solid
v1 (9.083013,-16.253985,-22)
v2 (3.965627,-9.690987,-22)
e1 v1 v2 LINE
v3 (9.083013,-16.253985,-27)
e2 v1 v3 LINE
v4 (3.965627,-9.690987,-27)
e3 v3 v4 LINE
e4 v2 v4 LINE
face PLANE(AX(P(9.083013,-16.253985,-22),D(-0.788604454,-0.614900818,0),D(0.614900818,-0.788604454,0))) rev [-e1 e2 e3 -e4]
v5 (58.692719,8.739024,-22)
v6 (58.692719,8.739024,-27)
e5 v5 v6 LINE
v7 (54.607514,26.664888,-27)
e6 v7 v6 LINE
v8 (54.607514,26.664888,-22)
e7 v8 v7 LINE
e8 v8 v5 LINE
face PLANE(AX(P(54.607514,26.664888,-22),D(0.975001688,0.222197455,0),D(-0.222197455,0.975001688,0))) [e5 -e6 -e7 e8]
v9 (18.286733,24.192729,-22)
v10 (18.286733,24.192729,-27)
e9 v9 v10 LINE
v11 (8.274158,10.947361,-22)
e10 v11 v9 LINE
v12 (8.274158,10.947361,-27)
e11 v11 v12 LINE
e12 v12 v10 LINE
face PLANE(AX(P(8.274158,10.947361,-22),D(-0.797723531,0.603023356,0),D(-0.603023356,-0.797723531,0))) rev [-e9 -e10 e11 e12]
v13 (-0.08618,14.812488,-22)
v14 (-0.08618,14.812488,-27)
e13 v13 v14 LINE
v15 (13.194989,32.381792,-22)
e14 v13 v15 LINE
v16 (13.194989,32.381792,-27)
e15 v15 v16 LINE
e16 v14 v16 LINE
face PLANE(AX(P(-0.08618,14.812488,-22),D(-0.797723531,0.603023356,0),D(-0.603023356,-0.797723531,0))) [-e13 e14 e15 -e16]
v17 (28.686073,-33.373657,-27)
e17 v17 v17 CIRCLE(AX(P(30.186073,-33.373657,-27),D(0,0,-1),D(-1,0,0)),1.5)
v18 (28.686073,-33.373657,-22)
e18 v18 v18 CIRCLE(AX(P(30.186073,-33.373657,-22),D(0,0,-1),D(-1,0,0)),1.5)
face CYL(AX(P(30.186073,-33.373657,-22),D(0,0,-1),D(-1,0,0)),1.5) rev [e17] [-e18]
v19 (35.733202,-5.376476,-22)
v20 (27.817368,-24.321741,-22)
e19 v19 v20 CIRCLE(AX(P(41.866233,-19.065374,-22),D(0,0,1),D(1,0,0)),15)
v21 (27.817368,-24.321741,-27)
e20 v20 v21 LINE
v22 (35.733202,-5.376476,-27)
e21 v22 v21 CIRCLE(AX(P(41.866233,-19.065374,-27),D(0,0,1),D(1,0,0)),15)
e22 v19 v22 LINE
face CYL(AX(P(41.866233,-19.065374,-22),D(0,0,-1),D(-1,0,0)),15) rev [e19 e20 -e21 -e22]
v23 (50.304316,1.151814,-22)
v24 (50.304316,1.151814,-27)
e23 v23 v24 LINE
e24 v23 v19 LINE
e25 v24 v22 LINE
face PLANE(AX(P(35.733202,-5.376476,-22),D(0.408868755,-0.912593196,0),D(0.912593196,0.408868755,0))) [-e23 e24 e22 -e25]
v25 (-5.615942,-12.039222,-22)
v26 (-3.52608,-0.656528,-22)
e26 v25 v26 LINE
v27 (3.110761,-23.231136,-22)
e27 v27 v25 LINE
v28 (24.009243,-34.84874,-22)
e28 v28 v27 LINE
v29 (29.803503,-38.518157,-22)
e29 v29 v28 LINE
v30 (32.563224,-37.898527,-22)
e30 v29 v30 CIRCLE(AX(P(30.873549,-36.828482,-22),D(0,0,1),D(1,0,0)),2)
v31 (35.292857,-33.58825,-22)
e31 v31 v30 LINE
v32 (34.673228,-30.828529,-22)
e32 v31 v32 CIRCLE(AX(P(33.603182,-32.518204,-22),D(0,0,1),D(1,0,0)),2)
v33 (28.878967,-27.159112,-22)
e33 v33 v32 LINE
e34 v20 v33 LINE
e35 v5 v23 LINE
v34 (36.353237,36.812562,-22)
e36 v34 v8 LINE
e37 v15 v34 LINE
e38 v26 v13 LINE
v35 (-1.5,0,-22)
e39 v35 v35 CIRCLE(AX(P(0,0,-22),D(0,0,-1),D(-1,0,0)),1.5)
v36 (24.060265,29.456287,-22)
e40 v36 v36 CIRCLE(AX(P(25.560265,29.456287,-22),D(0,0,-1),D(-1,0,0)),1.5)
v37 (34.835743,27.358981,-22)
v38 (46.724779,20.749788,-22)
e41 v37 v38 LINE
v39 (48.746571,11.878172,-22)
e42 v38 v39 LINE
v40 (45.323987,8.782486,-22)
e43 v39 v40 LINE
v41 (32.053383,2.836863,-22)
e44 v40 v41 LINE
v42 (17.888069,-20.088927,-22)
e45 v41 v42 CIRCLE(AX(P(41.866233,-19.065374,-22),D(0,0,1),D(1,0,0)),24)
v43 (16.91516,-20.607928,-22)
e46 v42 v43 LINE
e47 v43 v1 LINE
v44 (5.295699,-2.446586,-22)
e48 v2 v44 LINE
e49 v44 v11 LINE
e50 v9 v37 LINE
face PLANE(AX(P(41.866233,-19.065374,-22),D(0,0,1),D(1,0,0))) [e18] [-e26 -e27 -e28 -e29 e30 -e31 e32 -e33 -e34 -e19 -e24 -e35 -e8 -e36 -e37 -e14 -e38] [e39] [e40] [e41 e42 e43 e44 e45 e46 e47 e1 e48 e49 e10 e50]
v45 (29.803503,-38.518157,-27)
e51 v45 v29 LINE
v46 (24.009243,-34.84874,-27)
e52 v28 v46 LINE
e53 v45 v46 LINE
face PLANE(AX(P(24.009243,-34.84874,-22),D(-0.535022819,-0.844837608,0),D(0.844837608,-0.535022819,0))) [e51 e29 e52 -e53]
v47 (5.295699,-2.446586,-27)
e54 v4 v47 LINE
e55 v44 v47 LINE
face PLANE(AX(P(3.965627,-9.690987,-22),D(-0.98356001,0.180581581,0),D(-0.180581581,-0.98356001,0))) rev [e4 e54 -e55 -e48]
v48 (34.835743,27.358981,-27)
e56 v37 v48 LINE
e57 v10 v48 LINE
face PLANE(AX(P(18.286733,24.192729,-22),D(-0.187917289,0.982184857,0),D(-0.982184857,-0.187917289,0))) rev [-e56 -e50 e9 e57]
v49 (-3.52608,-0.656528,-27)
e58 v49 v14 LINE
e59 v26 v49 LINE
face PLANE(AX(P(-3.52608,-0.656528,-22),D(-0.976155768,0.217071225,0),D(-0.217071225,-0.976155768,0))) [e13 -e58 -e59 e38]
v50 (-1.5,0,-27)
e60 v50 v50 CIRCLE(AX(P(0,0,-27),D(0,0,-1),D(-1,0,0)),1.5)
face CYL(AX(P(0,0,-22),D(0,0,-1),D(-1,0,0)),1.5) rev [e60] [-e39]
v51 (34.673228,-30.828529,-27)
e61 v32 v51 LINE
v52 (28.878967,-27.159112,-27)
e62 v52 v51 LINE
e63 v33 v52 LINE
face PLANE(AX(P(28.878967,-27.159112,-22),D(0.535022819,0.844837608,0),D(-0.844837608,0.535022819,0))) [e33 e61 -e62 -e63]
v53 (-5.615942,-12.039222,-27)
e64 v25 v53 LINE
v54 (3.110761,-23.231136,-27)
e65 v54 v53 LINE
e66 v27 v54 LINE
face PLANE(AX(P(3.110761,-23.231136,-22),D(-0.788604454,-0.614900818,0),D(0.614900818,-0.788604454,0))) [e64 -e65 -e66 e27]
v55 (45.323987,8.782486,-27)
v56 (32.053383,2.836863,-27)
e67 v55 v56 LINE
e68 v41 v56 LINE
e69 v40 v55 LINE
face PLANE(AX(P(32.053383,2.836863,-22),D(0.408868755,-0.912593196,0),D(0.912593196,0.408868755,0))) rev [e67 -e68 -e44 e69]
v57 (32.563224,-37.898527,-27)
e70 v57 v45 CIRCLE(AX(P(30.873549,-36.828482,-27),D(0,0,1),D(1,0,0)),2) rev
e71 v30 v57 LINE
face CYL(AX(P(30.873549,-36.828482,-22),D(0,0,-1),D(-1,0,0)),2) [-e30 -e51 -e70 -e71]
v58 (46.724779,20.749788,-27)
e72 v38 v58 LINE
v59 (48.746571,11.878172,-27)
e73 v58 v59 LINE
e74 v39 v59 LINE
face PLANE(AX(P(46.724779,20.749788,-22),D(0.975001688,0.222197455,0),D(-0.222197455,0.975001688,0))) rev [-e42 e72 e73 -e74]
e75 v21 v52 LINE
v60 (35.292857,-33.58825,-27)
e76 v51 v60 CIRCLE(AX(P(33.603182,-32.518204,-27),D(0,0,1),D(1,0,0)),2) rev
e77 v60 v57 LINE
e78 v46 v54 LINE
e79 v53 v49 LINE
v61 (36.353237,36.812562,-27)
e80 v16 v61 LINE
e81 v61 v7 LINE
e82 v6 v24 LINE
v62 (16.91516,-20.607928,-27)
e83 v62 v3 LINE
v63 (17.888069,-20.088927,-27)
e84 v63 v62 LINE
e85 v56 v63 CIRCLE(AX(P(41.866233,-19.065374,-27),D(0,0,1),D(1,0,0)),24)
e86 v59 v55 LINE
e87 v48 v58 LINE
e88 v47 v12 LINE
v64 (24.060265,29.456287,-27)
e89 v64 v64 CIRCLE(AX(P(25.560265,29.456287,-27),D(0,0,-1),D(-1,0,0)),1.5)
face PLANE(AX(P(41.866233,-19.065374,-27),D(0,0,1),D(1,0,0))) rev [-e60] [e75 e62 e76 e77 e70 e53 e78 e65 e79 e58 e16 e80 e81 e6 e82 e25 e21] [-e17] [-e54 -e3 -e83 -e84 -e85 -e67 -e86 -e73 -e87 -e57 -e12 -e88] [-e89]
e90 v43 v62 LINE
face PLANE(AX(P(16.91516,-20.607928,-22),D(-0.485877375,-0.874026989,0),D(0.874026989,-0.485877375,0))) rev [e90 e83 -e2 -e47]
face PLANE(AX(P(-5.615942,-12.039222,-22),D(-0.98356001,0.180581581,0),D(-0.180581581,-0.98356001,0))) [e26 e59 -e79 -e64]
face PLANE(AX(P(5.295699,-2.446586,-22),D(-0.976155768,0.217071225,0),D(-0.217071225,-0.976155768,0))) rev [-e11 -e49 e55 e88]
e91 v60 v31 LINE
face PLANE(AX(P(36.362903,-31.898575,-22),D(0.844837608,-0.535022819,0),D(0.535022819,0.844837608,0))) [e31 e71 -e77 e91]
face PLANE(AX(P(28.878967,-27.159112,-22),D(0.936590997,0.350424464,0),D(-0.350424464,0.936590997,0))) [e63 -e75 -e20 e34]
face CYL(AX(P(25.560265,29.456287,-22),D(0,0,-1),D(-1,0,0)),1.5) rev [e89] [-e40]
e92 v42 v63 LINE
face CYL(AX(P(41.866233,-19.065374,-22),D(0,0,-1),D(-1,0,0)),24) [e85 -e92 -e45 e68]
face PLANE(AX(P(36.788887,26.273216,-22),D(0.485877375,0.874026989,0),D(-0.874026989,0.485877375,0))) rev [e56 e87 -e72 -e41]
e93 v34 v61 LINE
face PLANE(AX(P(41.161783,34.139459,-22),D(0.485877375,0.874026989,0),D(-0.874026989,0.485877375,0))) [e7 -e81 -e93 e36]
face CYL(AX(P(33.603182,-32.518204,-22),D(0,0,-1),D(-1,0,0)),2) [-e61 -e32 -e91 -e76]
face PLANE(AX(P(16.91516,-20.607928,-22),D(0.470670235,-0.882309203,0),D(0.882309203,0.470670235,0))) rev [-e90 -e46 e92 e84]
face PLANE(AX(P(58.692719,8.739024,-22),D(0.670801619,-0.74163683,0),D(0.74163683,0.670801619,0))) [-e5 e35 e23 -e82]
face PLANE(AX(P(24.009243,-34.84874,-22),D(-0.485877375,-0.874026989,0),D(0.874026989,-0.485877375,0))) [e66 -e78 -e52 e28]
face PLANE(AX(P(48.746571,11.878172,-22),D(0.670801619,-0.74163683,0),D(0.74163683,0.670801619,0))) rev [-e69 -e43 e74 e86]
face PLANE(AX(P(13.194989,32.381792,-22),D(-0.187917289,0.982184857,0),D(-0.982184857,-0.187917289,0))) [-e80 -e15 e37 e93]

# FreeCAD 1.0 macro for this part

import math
import FreeCAD as App
import Part
import Sketcher

V = App.Vector


def edges_at(feature, points):
    """Names of the edges that pass closest to the given points."""
    edges = feature.Shape.Edges
    near = lambda p: min(range(len(edges)), key=lambda i: edges[i].distToShape(Part.Vertex(*p))[0])
    return sorted({f"Edge{near(p) + 1}" for p in points})

doc = App.newDocument("Part")
body = doc.addObject("PartDesign::Body", "Body")

# Sketch on XY plane
sketch1 = body.newObject("Sketcher::SketchObject", "Sketch")
sketch1.AttachmentSupport = (doc.getObject("XY_Plane"), [""])
sketch1.MapMode = "FlatFace"
sketch1.AttachmentOffset = App.Placement(V(0, 0, -27), App.Rotation())
sketch1.addGeometry([
    Part.LineSegment(V(28.878967, -27.159112, 0), V(36.362903, -31.898575, 0)),  # 0
    Part.LineSegment(V(36.362903, -31.898575, 0), V(31.493178, -39.588203, 0)),  # 1
    Part.LineSegment(V(31.493178, -39.588203, 0), V(24.009243, -34.84874, 0)),  # 2
    Part.LineSegment(V(24.009243, -34.84874, 0), V(3.110761, -23.231136, 0)),  # 3
    Part.LineSegment(V(3.110761, -23.231136, 0), V(-5.615942, -12.039222, 0)),  # 4
    Part.LineSegment(V(-5.615942, -12.039222, 0), V(-3.52608, -0.656528, 0)),  # 5
    Part.LineSegment(V(-3.52608, -0.656528, 0), V(-0.08618, 14.812488, 0)),  # 6
    Part.LineSegment(V(-0.08618, 14.812488, 0), V(13.194989, 32.381792, 0)),  # 7
    Part.LineSegment(V(13.194989, 32.381792, 0), V(36.353237, 36.812562, 0)),  # 8
    Part.LineSegment(V(36.353237, 36.812562, 0), V(41.161783, 34.139459, 0)),  # 9
    Part.LineSegment(V(41.161783, 34.139459, 0), V(54.607514, 26.664888, 0)),  # 10
    Part.LineSegment(V(54.607514, 26.664888, 0), V(58.692719, 8.739024, 0)),  # 11
    Part.LineSegment(V(58.692719, 8.739024, 0), V(50.304316, 1.151814, 0)),  # 12
    Part.LineSegment(V(50.304316, 1.151814, 0), V(35.733202, -5.376476, 0)),  # 13
    Part.ArcOfCircle(Part.Circle(V(41.866233, -19.065374, 0), V(0, 0, 1), 15), math.radians(114.133792), math.radians(200.513279)),  # 14
    Part.LineSegment(V(27.817368, -24.321741, 0), V(28.878967, -27.159112, 0)),  # 15
    Part.Circle(V(30.186073, -33.373657, 0), V(0, 0, 1), 1.5),  # 16
    Part.Circle(V(0, 0, 0), V(0, 0, 1), 1.5),  # 17
    Part.LineSegment(V(9.083013, -16.253985, 0), V(16.91516, -20.607928, 0)),  # 18
    Part.LineSegment(V(16.91516, -20.607928, 0), V(17.888069, -20.088927, 0)),  # 19
    Part.ArcOfCircle(Part.Circle(V(41.866233, -19.065374, 0), V(0, 0, 1), 24), math.radians(114.133792), math.radians(182.444294)),  # 20
    Part.LineSegment(V(32.053383, 2.836863, 0), V(45.323987, 8.782486, 0)),  # 21
    Part.LineSegment(V(45.323987, 8.782486, 0), V(48.746571, 11.878172, 0)),  # 22
    Part.LineSegment(V(48.746571, 11.878172, 0), V(46.724779, 20.749788, 0)),  # 23
    Part.LineSegment(V(46.724779, 20.749788, 0), V(36.788887, 26.273216, 0)),  # 24
    Part.LineSegment(V(36.788887, 26.273216, 0), V(34.835743, 27.358981, 0)),  # 25
    Part.LineSegment(V(34.835743, 27.358981, 0), V(18.286733, 24.192729, 0)),  # 26
    Part.LineSegment(V(18.286733, 24.192729, 0), V(8.274158, 10.947361, 0)),  # 27
    Part.LineSegment(V(8.274158, 10.947361, 0), V(5.295699, -2.446586, 0)),  # 28
    Part.LineSegment(V(5.295699, -2.446586, 0), V(3.965627, -9.690987, 0)),  # 29
    Part.LineSegment(V(3.965627, -9.690987, 0), V(9.083013, -16.253985, 0)),  # 30
    Part.Circle(V(25.560265, 29.456287, 0), V(0, 0, 1), 1.5),  # 31
], False)
sketch1.addConstraint([
    Sketcher.Constraint("Coincident", 0, 2, 1, 1),
    Sketcher.Constraint("Coincident", 1, 2, 2, 1),
    Sketcher.Constraint("Coincident", 2, 2, 3, 1),
    Sketcher.Constraint("Coincident", 3, 2, 4, 1),
    Sketcher.Constraint("Coincident", 4, 2, 5, 1),
    Sketcher.Constraint("Coincident", 5, 2, 6, 1),
    Sketcher.Constraint("Coincident", 6, 2, 7, 1),
    Sketcher.Constraint("Coincident", 7, 2, 8, 1),
    Sketcher.Constraint("Coincident", 8, 2, 9, 1),
    Sketcher.Constraint("Coincident", 9, 2, 10, 1),
    Sketcher.Constraint("Coincident", 10, 2, 11, 1),
    Sketcher.Constraint("Coincident", 11, 2, 12, 1),
    Sketcher.Constraint("Coincident", 12, 2, 13, 1),
    Sketcher.Constraint("Coincident", 13, 2, 14, 1),
    Sketcher.Constraint("Coincident", 14, 2, 15, 1),
    Sketcher.Constraint("Coincident", 15, 2, 0, 1),
    Sketcher.Constraint("Coincident", 18, 2, 19, 1),
    Sketcher.Constraint("Coincident", 19, 2, 20, 2),
    Sketcher.Constraint("Coincident", 20, 1, 21, 1),
    Sketcher.Constraint("Coincident", 21, 2, 22, 1),
    Sketcher.Constraint("Coincident", 22, 2, 23, 1),
    Sketcher.Constraint("Coincident", 23, 2, 24, 1),
    Sketcher.Constraint("Coincident", 24, 2, 25, 1),
    Sketcher.Constraint("Coincident", 25, 2, 26, 1),
    Sketcher.Constraint("Coincident", 26, 2, 27, 1),
    Sketcher.Constraint("Coincident", 27, 2, 28, 1),
    Sketcher.Constraint("Coincident", 28, 2, 29, 1),
    Sketcher.Constraint("Coincident", 29, 2, 30, 1),
    Sketcher.Constraint("Coincident", 30, 2, 18, 1),
    Sketcher.Constraint("Coincident", 17, 3, -1, 1),
    Sketcher.Constraint("Coincident", 20, 3, 14, 3),
    Sketcher.Constraint("Diameter", 16, 3.0),
    Sketcher.Constraint("Diameter", 17, 3.0),
    Sketcher.Constraint("Diameter", 31, 3.0),
    Sketcher.Constraint("Radius", 14, 15.0),
    Sketcher.Constraint("Radius", 20, 24.0),
    Sketcher.Constraint("DistanceY", 2, 2, 14, 2, 10.526999),
    Sketcher.Constraint("DistanceY", 18, 2, 19, 2, 0.519001),
    Sketcher.Constraint("DistanceY", 30, 2, 29, 2, 6.562999),
    Sketcher.Constraint("Distance", 1, 9.1019),
    Sketcher.Constraint("Distance", 7, 22.024302),
    Sketcher.Constraint("Distance", 8, 23.578299),
    Sketcher.Constraint("Distance", 9, 5.5016),
    Sketcher.Constraint("DistanceX", -1, 1, 13, 2, 35.733202),
    Sketcher.Constraint("DistanceX", -1, 1, 28, 2, 5.295699),
    Sketcher.Constraint("DistanceY", 0, 2, 14, 3, 12.833201),
    Sketcher.Constraint("DistanceX", 5, 2, 6, 2, 3.4399),
    Sketcher.Constraint("DistanceY", 6, 2, 31, 3, 14.643799),
    Sketcher.Constraint("DistanceY", 10, 2, 31, 3, 2.791399),
    Sketcher.Constraint("DistanceY", 14, 3, 11, 2, 27.804398),
    Sketcher.Constraint("DistanceX", 12, 2, 10, 2, 4.303198),
    Sketcher.Constraint("DistanceX", 13, 2, 0, 2, 0.629701),
    Sketcher.Constraint("DistanceY", 0, 2, 13, 2, 26.522099),
    Sketcher.Constraint("DistanceX", 14, 2, 15, 2, 1.061599),
    Sketcher.Constraint("DistanceX", 3, 2, 18, 2, 13.804399),
    Sketcher.Constraint("DistanceX", 19, 2, 14, 2, 9.929299),
    Sketcher.Constraint("DistanceY", 23, 2, 10, 2, 5.915101),
    Sketcher.Constraint("DistanceY", 21, 2, 23, 2, 11.967302),
    Sketcher.Constraint("DistanceY", 29, 2, 28, 2, 7.2444),
    Sketcher.Constraint("Distance", 0, 8.858431),
    Sketcher.Constraint("Distance", 2, 8.858431),
    Sketcher.Constraint("Distance", 3, 23.910568),
    Sketcher.Constraint("Distance", 4, 14.19205),
    Sketcher.Constraint("Distance", 11, 18.38547),
    Sketcher.Constraint("Distance", 12, 11.310661),
    Sketcher.Constraint("Distance", 18, 8.96099),
    Sketcher.Constraint("Distance", 25, 2.234649),
    Sketcher.Constraint("Distance", 26, 16.849181),
    Sketcher.Constraint("Distance", 29, 7.365489),
    Sketcher.Constraint("DistanceX", -1, 1, 1, 2, 31.493178),
    Sketcher.Constraint("DistanceY", 2, 2, -1, 1, 34.84874),
    Sketcher.Constraint("DistanceX", -1, 1, 3, 2, 3.110761),
    Sketcher.Constraint("DistanceX", 4, 2, -1, 1, 5.615942),
    Sketcher.Constraint("DistanceX", 5, 2, -1, 1, 3.52608),
    Sketcher.Constraint("DistanceY", 5, 2, -1, 1, 0.656528),
    Sketcher.Constraint("DistanceX", -1, 1, 7, 2, 13.194989),
    Sketcher.Constraint("DistanceY", -1, 1, 7, 2, 32.381792),
    Sketcher.Constraint("DistanceY", -1, 1, 8, 2, 36.812562),
    Sketcher.Constraint("DistanceY", -1, 1, 9, 2, 34.139459),
    Sketcher.Constraint("DistanceX", -1, 1, 11, 2, 58.692719),
    Sketcher.Constraint("DistanceX", -1, 1, 14, 2, 27.817368),
    Sketcher.Constraint("DistanceX", -1, 1, 22, 2, 48.746571),
    Sketcher.Constraint("DistanceX", -1, 1, 23, 2, 46.724779),
    Sketcher.Constraint("DistanceY", -1, 1, 25, 2, 27.358981),
    Sketcher.Constraint("DistanceY", -1, 1, 26, 2, 24.192729),
    Sketcher.Constraint("DistanceX", -1, 1, 27, 2, 8.274158),
    Sketcher.Constraint("DistanceY", -1, 1, 27, 2, 10.947361),
    Sketcher.Constraint("DistanceX", 16, 3, 14, 3, 11.68016),
    Sketcher.Constraint("DistanceY", 16, 3, 3, 2, 10.142521),
    Sketcher.Constraint("DistanceX", 31, 3, 8, 2, 10.792971),
    Sketcher.Constraint("DistanceX", 20, 1, 13, 2, 3.679819),
    Sketcher.Constraint("DistanceX", 21, 2, 12, 2, 4.980329),
    Sketcher.Constraint("DistanceY", 11, 2, 22, 2, 3.139148),
    Sketcher.Constraint("DistanceX", 8, 2, 24, 2, 0.43565),
    Sketcher.Constraint("DistanceY", 23, 2, 24, 2, 5.523428),
    Sketcher.Constraint("DistanceY", 28, 2, 5, 2, 1.790058),
])
pad1 = body.newObject("PartDesign::Pad", "Pad")
pad1.Profile = sketch1
pad1.Length = 5
doc.recompute()

fillet = body.newObject("PartDesign::Fillet", "Fillet")
fillet.Base = (pad1, edges_at(pad1, [(31.493, -39.588, -24.5), (36.363, -31.899, -24.5)]))
fillet.Radius = 2

doc.recompute()
